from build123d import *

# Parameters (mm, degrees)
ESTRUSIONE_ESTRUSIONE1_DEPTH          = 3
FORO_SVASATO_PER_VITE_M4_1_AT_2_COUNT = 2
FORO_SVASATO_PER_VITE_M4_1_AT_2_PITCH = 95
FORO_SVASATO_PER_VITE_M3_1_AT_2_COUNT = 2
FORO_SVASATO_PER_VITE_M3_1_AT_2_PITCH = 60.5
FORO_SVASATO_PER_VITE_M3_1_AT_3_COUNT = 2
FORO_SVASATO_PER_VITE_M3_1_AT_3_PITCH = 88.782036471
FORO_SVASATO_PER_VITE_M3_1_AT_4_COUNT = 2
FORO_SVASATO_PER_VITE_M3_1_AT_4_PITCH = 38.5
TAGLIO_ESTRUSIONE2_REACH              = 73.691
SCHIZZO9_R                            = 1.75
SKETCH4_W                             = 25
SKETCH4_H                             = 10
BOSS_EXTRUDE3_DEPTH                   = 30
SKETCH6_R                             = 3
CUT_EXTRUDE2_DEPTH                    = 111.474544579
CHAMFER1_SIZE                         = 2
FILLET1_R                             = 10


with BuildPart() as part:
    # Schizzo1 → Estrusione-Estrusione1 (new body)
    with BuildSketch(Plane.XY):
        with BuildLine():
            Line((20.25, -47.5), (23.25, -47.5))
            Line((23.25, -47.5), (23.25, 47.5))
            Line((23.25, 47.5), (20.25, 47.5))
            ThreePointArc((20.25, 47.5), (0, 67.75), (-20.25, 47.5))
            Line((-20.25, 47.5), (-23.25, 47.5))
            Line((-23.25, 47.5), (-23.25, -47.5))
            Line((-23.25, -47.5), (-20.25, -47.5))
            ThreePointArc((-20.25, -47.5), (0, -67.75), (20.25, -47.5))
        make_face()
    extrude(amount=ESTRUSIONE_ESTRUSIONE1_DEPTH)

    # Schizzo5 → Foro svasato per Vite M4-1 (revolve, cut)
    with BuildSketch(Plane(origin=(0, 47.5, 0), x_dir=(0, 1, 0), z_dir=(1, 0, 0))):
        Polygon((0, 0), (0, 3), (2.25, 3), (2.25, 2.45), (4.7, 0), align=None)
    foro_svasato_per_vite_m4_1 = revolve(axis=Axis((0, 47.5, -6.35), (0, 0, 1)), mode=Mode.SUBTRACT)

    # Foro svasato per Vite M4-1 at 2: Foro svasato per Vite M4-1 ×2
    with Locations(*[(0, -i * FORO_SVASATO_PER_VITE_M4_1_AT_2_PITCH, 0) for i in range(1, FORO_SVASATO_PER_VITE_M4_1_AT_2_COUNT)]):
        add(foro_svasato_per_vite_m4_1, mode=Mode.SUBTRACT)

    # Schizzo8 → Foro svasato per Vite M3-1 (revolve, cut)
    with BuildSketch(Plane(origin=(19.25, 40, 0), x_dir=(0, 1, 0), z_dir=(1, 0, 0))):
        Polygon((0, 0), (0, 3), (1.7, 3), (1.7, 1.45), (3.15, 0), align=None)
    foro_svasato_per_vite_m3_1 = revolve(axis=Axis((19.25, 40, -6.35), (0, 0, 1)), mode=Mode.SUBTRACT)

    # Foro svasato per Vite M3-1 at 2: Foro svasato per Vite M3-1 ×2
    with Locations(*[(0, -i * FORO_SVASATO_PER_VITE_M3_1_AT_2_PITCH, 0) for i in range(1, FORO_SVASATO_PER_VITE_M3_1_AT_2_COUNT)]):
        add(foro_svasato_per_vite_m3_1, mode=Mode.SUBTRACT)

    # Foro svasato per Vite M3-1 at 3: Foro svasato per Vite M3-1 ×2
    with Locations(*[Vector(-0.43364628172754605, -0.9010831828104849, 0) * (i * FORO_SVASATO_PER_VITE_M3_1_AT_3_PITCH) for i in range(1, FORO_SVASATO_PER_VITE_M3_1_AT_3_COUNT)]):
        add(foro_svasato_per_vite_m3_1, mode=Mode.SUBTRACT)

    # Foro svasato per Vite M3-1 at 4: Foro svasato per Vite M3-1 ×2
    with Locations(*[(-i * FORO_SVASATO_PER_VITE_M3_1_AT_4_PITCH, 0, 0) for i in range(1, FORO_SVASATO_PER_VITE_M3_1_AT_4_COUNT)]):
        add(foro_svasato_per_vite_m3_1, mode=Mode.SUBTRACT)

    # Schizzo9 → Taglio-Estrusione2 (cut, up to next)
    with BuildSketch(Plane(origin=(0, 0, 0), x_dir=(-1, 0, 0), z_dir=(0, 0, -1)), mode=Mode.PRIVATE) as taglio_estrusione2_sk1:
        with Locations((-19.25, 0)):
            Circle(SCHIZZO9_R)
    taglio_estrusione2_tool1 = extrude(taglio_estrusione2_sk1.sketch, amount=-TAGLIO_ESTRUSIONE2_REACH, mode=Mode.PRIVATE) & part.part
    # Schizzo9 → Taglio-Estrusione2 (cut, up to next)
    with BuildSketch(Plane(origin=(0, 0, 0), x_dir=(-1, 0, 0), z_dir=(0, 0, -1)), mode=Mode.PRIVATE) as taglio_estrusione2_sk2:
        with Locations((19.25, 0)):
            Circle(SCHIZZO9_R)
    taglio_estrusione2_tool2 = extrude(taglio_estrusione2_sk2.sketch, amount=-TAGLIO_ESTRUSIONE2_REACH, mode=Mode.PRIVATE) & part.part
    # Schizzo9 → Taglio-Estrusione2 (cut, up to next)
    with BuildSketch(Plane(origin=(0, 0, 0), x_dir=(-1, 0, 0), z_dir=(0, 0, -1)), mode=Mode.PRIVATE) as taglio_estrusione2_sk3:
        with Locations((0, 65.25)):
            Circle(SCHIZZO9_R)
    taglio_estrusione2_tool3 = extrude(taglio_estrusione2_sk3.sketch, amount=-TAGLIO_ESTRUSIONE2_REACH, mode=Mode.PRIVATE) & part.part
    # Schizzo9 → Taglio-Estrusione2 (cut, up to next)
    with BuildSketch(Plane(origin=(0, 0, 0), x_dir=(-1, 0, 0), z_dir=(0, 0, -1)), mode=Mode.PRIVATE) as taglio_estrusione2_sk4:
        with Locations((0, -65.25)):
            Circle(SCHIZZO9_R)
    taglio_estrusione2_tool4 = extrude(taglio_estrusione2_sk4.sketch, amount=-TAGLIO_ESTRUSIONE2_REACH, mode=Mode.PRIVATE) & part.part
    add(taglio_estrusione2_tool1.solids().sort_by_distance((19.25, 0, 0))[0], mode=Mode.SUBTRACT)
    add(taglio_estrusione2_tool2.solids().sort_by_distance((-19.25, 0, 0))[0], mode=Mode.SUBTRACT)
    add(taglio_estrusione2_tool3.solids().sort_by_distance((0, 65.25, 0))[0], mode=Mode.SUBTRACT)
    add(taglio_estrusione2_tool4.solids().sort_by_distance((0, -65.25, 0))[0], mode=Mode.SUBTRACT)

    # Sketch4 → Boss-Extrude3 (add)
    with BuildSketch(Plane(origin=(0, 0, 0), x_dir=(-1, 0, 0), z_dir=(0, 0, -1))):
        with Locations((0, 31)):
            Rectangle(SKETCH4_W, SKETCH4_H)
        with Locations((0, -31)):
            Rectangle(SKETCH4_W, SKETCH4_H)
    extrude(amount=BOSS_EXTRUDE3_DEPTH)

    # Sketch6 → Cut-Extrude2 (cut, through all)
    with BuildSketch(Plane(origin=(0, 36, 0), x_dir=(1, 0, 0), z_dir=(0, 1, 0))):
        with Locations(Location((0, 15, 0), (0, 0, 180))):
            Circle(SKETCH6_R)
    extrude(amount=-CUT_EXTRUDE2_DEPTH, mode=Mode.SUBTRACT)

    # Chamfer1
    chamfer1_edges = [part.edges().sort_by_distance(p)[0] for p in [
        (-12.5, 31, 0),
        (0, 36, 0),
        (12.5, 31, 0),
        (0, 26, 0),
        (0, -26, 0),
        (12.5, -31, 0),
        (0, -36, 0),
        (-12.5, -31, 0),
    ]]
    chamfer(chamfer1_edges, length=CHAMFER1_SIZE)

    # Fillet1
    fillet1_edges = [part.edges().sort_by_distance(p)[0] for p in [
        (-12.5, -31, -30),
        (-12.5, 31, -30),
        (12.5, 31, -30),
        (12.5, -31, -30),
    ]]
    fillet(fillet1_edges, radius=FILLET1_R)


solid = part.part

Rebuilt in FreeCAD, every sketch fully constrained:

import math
import FreeCAD as App
import Part
import Sketcher

V = App.Vector
Q = App.Units.Quantity


def edges_at(feature, points):
    """Names of the edges that pass closest to the given points."""
    edges = feature.Shape.Edges
    near = lambda p: min(range(len(edges)), key=lambda i: edges[i].distToShape(Part.Vertex(*p))[0])
    return sorted({f"Edge{near(p) + 1}" for p in points})

doc = App.newDocument("Part")
params = doc.addObject("Spreadsheet::Sheet", "Params")
for row, (alias, value) in enumerate([
    ("sketch1_width", "3 mm"),
    ("sketch1_height", "95 mm"),
    ("sketch1_radius", "20.25 mm"),
    ("pad1_length", "3 mm"),
    ("sketch2_height", "3 mm"),
    ("sketch2_width", "4.7 mm"),
    ("sketch2_width2", "2.25 mm"),
    ("groove_angle", "360 deg"),
    ("linearpattern_pitch", "95 mm"),
    ("sketch3_height", "3 mm"),
    ("sketch3_width", "1.7 mm"),
    ("sketch3_width2", "3.15 mm"),
    ("groove2_angle", "360 deg"),
    ("linearpattern2_pitch", "60.5 mm"),
    ("linearpattern3_pitch", "88.782036 mm"),
    ("linearpattern4_pitch", "38.5 mm"),
    ("sketch4_diameter", "3.5 mm"),
    ("sketch5_diameter", "3.5 mm"),
    ("sketch6_diameter", "3.5 mm"),
    ("sketch7_diameter", "3.5 mm"),
    ("sketch8_width", "25 mm"),
    ("sketch8_height", "10 mm"),
    ("pad2_length", "30 mm"),
    ("sketch9_diameter", "6 mm"),
    ("chamfer_size", "2 mm"),
    ("fillet_radius", "10 mm"),
], start=1):
    params.set(f"A{row}", alias)
    params.set(f"B{row}", "=" + value)
    params.setAlias(f"B{row}", alias)

body = doc.addObject("PartDesign::Body", "Body")

sketch1 = body.newObject("Sketcher::SketchObject", "Sketch")
sketch1.AttachmentSupport = (doc.getObject("XY_Plane"), [""])
sketch1.MapMode = "FlatFace"
sketch1.addGeometry([
    Part.LineSegment(V(20.2, -47.5, 0), V(23.2, -47.5, 0)),
    Part.LineSegment(V(23.2, -47.5, 0), V(23.2, 47.5, 0)),
    Part.LineSegment(V(23.2, 47.5, 0), V(20.2, 47.5, 0)),
    Part.ArcOfCircle(Part.Circle(V(0, 47.5, 0), V(0, 0, 1), 20.2), math.radians(0), math.radians(180)),
    Part.LineSegment(V(-20.2, 47.5, 0), V(-23.2, 47.5, 0)),
    Part.LineSegment(V(-23.2, 47.5, 0), V(-23.2, -47.5, 0)),
    Part.LineSegment(V(-23.2, -47.5, 0), V(-20.2, -47.5, 0)),
    Part.ArcOfCircle(Part.Circle(V(0, -47.5, 0), V(0, 0, 1), 20.2), math.radians(180), math.radians(360)),
], False)
sketch1.addConstraint([
    Sketcher.Constraint("Coincident", 0, 2, 1, 1),
    Sketcher.Constraint("Coincident", 1, 2, 2, 1),
    Sketcher.Constraint("Coincident", 2, 2, 3, 1),
    Sketcher.Constraint("Coincident", 3, 2, 4, 1),
    Sketcher.Constraint("Coincident", 4, 2, 5, 1),
    Sketcher.Constraint("Coincident", 5, 2, 6, 1),
    Sketcher.Constraint("Coincident", 6, 2, 7, 1),
    Sketcher.Constraint("Coincident", 7, 2, 0, 1),
    Sketcher.Constraint("Horizontal", 0),
    Sketcher.Constraint("Vertical", 1),
    Sketcher.Constraint("Horizontal", 2),
    Sketcher.Constraint("Horizontal", 4),
    Sketcher.Constraint("Vertical", 5),
    Sketcher.Constraint("Horizontal", 6),
    Sketcher.Constraint("Equal", 3, 7),
    Sketcher.Constraint("Symmetric", 3, 3, 7, 3, -1, 1),
    Sketcher.Constraint("Symmetric", 0, 2, 4, 2, -1, 1),
    Sketcher.Constraint("Symmetric", 2, 2, 3, 2, -2),
    Sketcher.Constraint("Horizontal", 7, 3, 0, 2),
    Sketcher.Constraint("Horizontal", 0, 2, 5, 2),
    Sketcher.Constraint("DistanceX", 0, 1, 0, 2, 3.0),
    Sketcher.Constraint("DistanceY", 1, 1, 1, 2, 95.0),
    Sketcher.Constraint("Radius", 3, 20.25),
])
sketch1.setExpression("Constraints[20]", "Params.sketch1_width")
sketch1.setExpression("Constraints[21]", "Params.sketch1_height")
sketch1.setExpression("Constraints[22]", "Params.sketch1_radius")
pad1 = body.newObject("PartDesign::Pad", "Pad")
pad1.Profile = sketch1
pad1.setExpression("Length", "Params.pad1_length")

sketch2 = body.newObject("Sketcher::SketchObject", "Sketch001")
sketch2.AttachmentSupport = (doc.getObject("YZ_Plane"), [""])
sketch2.MapMode = "FlatFace"
sketch2.addGeometry([
    Part.LineSegment(V(47.5, 3, 0), V(47.5, 0, 0)),
    Part.LineSegment(V(47.5, 0, 0), V(52.2, 0, 0)),
    Part.LineSegment(V(52.2, 0, 0), V(49.8, 2.5, 0)),
    Part.LineSegment(V(49.8, 2.5, 0), V(49.8, 3, 0)),
    Part.LineSegment(V(49.8, 3, 0), V(47.5, 3, 0)),
], False)
sketch2.addGeometry(Part.LineSegment(V(47.5, 0, 0), V(47.5, 3, 0)), True)
sketch2.addConstraint([
    Sketcher.Constraint("Coincident", 0, 2, 1, 1),
    Sketcher.Constraint("Coincident", 1, 2, 2, 1),
    Sketcher.Constraint("Coincident", 2, 2, 3, 1),
    Sketcher.Constraint("Coincident", 3, 2, 4, 1),
    Sketcher.Constraint("Coincident", 4, 2, 0, 1),
    Sketcher.Constraint("Vertical", 0),
    Sketcher.Constraint("Horizontal", 1),
    Sketcher.Constraint("Vertical", 3),
    Sketcher.Constraint("Horizontal", 4),
    Sketcher.Constraint("Vertical", 5),
    Sketcher.Constraint("Coincident", 5, 1, 0, 2),
    Sketcher.Constraint("PointOnObject", 0, 2, -1),
    Sketcher.Constraint("Horizontal", 3, 2, 5, 2),
    Sketcher.Constraint("DistanceY", 0, 2, 0, 1, 3.0),
    Sketcher.Constraint("Angle", 2, Q("135 deg")),
    Sketcher.Constraint("DistanceX", 1, 1, 1, 2, 4.7),
    Sketcher.Constraint("DistanceX", 4, 2, 4, 1, 2.25),
    Sketcher.Constraint("DistanceX", -1, 1, 0, 2, 47.5),
])
sketch2.setExpression("Constraints[13]", "Params.sketch2_height")
sketch2.setExpression("Constraints[15]", "Params.sketch2_width")
sketch2.setExpression("Constraints[16]", "Params.sketch2_width2")
groove = body.newObject("PartDesign::Groove", "Groove")
groove.Profile = sketch2
groove.ReferenceAxis = (sketch2, ["Axis0"])
groove.setExpression("Angle", "Params.groove_angle")
doc.recompute()

linearpattern = body.newObject("PartDesign::LinearPattern", "LinearPattern")
linearpattern.Originals = [groove]
linearpattern.Direction = (doc.getObject("Y_Axis"), [""])
linearpattern.Mode = "offset"
linearpattern.setExpression("Offset", "Params.linearpattern_pitch")
linearpattern.Occurrences = 2
linearpattern.Reversed = True
body.Tip = linearpattern

sketch3 = body.newObject("Sketcher::SketchObject", "Sketch002")
sketch3.AttachmentSupport = (doc.getObject("YZ_Plane"), [""])
sketch3.MapMode = "FlatFace"
sketch3.AttachmentOffset = App.Placement(V(0, 0, 19.25), App.Rotation())
sketch3.addGeometry([
    Part.LineSegment(V(40, 3, 0), V(40, 0, 0)),
    Part.LineSegment(V(40, 0, 0), V(43.1, 0, 0)),
    Part.LineSegment(V(43.1, 0, 0), V(41.7, 1.4, 0)),
    Part.LineSegment(V(41.7, 1.4, 0), V(41.7, 3, 0)),
    Part.LineSegment(V(41.7, 3, 0), V(40, 3, 0)),
], False)
sketch3.addGeometry(Part.LineSegment(V(40, 0, 0), V(40, 3, 0)), True)
sketch3.addConstraint([
    Sketcher.Constraint("Coincident", 0, 2, 1, 1),
    Sketcher.Constraint("Coincident", 1, 2, 2, 1),
    Sketcher.Constraint("Coincident", 2, 2, 3, 1),
    Sketcher.Constraint("Coincident", 3, 2, 4, 1),
    Sketcher.Constraint("Coincident", 4, 2, 0, 1),
    Sketcher.Constraint("Vertical", 0),
    Sketcher.Constraint("Horizontal", 1),
    Sketcher.Constraint("Vertical", 3),
    Sketcher.Constraint("Horizontal", 4),
    Sketcher.Constraint("Vertical", 5),
    Sketcher.Constraint("Coincident", 5, 1, 0, 2),
    Sketcher.Constraint("PointOnObject", 0, 2, -1),
    Sketcher.Constraint("Horizontal", 3, 2, 5, 2),
    Sketcher.Constraint("DistanceY", 0, 2, 0, 1, 3.0),
    Sketcher.Constraint("Angle", 2, Q("135 deg")),
    Sketcher.Constraint("DistanceX", 4, 2, 4, 1, 1.7),
    Sketcher.Constraint("DistanceX", -1, 1, 0, 2, 40.0),
    Sketcher.Constraint("DistanceX", 1, 1, 1, 2, 3.15),
])
sketch3.setExpression("Constraints[13]", "Params.sketch3_height")
sketch3.setExpression("Constraints[15]", "Params.sketch3_width")
sketch3.setExpression("Constraints[17]", "Params.sketch3_width2")
groove2 = body.newObject("PartDesign::Groove", "Groove001")
groove2.Profile = sketch3
groove2.ReferenceAxis = (sketch3, ["Axis0"])
groove2.setExpression("Angle", "Params.groove2_angle")
doc.recompute()

linearpattern2 = body.newObject("PartDesign::LinearPattern", "LinearPattern001")
linearpattern2.Originals = [groove2]
linearpattern2.Direction = (doc.getObject("Y_Axis"), [""])
linearpattern2.Mode = "offset"
linearpattern2.setExpression("Offset", "Params.linearpattern2_pitch")
linearpattern2.Occurrences = 2
linearpattern2.Reversed = True
body.Tip = linearpattern2
doc.recompute()

datumline = body.newObject("PartDesign::Line", "DatumLine")
datumline.Placement = App.Placement(V(0, 0, 0), App.Rotation(V(0, 0, 1), V(-0.433646282, -0.901083183, 0)))
linearpattern3 = body.newObject("PartDesign::LinearPattern", "LinearPattern002")
linearpattern3.Originals = [groove2]
linearpattern3.Direction = (datumline, [""])
linearpattern3.Mode = "offset"
linearpattern3.setExpression("Offset", "Params.linearpattern3_pitch")
linearpattern3.Occurrences = 2
body.Tip = linearpattern3
doc.recompute()

linearpattern4 = body.newObject("PartDesign::LinearPattern", "LinearPattern003")
linearpattern4.Originals = [groove2]
linearpattern4.Direction = (doc.getObject("X_Axis"), [""])
linearpattern4.Mode = "offset"
linearpattern4.setExpression("Offset", "Params.linearpattern4_pitch")
linearpattern4.Occurrences = 2
linearpattern4.Reversed = True
body.Tip = linearpattern4

sketch4 = body.newObject("Sketcher::SketchObject", "Sketch003")
sketch4.AttachmentSupport = (doc.getObject("XY_Plane"), [""])
sketch4.MapMode = "FlatFace"
sketch4.addGeometry(Part.Circle(V(19.2, 0, 0), V(0, 0, 1), 1.8), False)
sketch4.addConstraint([
    Sketcher.Constraint("PointOnObject", 0, 3, -1),
    Sketcher.Constraint("Diameter", 0, 3.5),
    Sketcher.Constraint("DistanceX", -1, 1, 0, 3, 19.25),
])
sketch4.setExpression("Constraints[1]", "Params.sketch4_diameter")
pocket1 = body.newObject("PartDesign::Pocket", "Pocket")
pocket1.Profile = sketch4
pocket1.Type = "UpToFirst"
pocket1.Reversed = True

sketch5 = body.newObject("Sketcher::SketchObject", "Sketch004")
sketch5.AttachmentSupport = (doc.getObject("XY_Plane"), [""])
sketch5.MapMode = "FlatFace"
sketch5.addGeometry(Part.Circle(V(-19.2, 0, 0), V(0, 0, 1), 1.8), False)
sketch5.addConstraint([
    Sketcher.Constraint("PointOnObject", 0, 3, -1),
    Sketcher.Constraint("Diameter", 0, 3.5),
    Sketcher.Constraint("DistanceX", 0, 3, -1, 1, 19.25),
])
sketch5.setExpression("Constraints[1]", "Params.sketch5_diameter")
pocket2 = body.newObject("PartDesign::Pocket", "Pocket001")
pocket2.Profile = sketch5
pocket2.Type = "UpToFirst"
pocket2.Reversed = True

sketch6 = body.newObject("Sketcher::SketchObject", "Sketch005")
sketch6.AttachmentSupport = (doc.getObject("XY_Plane"), [""])
sketch6.MapMode = "FlatFace"
sketch6.addGeometry(Part.Circle(V(0, 65.2, 0), V(0, 0, 1), 1.8), False)
sketch6.addConstraint([
    Sketcher.Constraint("PointOnObject", 0, 3, -2),
    Sketcher.Constraint("Diameter", 0, 3.5),
    Sketcher.Constraint("DistanceY", -1, 1, 0, 3, 65.25),
])
sketch6.setExpression("Constraints[1]", "Params.sketch6_diameter")
pocket3 = body.newObject("PartDesign::Pocket", "Pocket002")
pocket3.Profile = sketch6
pocket3.Type = "UpToFirst"
pocket3.Reversed = True

sketch7 = body.newObject("Sketcher::SketchObject", "Sketch006")
sketch7.AttachmentSupport = (doc.getObject("XY_Plane"), [""])
sketch7.MapMode = "FlatFace"
sketch7.addGeometry(Part.Circle(V(0, -65.2, 0), V(0, 0, 1), 1.8), False)
sketch7.addConstraint([
    Sketcher.Constraint("PointOnObject", 0, 3, -2),
    Sketcher.Constraint("Diameter", 0, 3.5),
    Sketcher.Constraint("DistanceY", 0, 3, -1, 1, 65.25),
])
sketch7.setExpression("Constraints[1]", "Params.sketch7_diameter")
pocket4 = body.newObject("PartDesign::Pocket", "Pocket003")
pocket4.Profile = sketch7
pocket4.Type = "UpToFirst"
pocket4.Reversed = True

sketch8 = body.newObject("Sketcher::SketchObject", "Sketch007")
sketch8.AttachmentSupport = (doc.getObject("XY_Plane"), [""])
sketch8.MapMode = "FlatFace"
sketch8.addGeometry([
    Part.LineSegment(V(12, 36, 0), V(12, 26, 0)),
    Part.LineSegment(V(12, 26, 0), V(-12, 26, 0)),
    Part.LineSegment(V(-12, 26, 0), V(-12, 36, 0)),
    Part.LineSegment(V(-12, 36, 0), V(12, 36, 0)),
    Part.LineSegment(V(12, -26, 0), V(12, -36, 0)),
    Part.LineSegment(V(12, -36, 0), V(-12, -36, 0)),
    Part.LineSegment(V(-12, -36, 0), V(-12, -26, 0)),
    Part.LineSegment(V(-12, -26, 0), V(12, -26, 0)),
], False)
sketch8.addConstraint([
    Sketcher.Constraint("Coincident", 0, 2, 1, 1),
    Sketcher.Constraint("Coincident", 1, 2, 2, 1),
    Sketcher.Constraint("Coincident", 2, 2, 3, 1),
    Sketcher.Constraint("Coincident", 3, 2, 0, 1),
    Sketcher.Constraint("Coincident", 4, 2, 5, 1),
    Sketcher.Constraint("Coincident", 5, 2, 6, 1),
    Sketcher.Constraint("Coincident", 6, 2, 7, 1),
    Sketcher.Constraint("Coincident", 7, 2, 4, 1),
    Sketcher.Constraint("Vertical", 0),
    Sketcher.Constraint("Horizontal", 1),
    Sketcher.Constraint("Vertical", 2),
    Sketcher.Constraint("Horizontal", 3),
    Sketcher.Constraint("Vertical", 4),
    Sketcher.Constraint("Horizontal", 5),
    Sketcher.Constraint("Vertical", 6),
    Sketcher.Constraint("Horizontal", 7),
    Sketcher.Constraint("Symmetric", 2, 2, 4, 2, -1, 1),
    Sketcher.Constraint("Symmetric", 0, 2, 6, 2, -1, 1),
    Sketcher.Constraint("Vertical", 3, 2, 4, 2),
    Sketcher.Constraint("DistanceX", 1, 2, 1, 1, 25.0),
    Sketcher.Constraint("DistanceY", 0, 2, 0, 1, 10.0),
    Sketcher.Constraint("DistanceY", -1, 1, 0, 2, 26.0),
])
sketch8.setExpression("Constraints[19]", "Params.sketch8_width")
sketch8.setExpression("Constraints[20]", "Params.sketch8_height")
pad2 = body.newObject("PartDesign::Pad", "Pad001")
pad2.Profile = sketch8
pad2.setExpression("Length", "Params.pad2_length")
pad2.Reversed = True

sketch9 = body.newObject("Sketcher::SketchObject", "Sketch008")
sketch9.AttachmentSupport = (doc.getObject("XZ_Plane"), [""])
sketch9.MapMode = "FlatFace"
sketch9.AttachmentOffset = App.Placement(V(0, 0, -36), App.Rotation())
sketch9.addGeometry(Part.Circle(V(0, -15, 0), V(0, 0, 1), 3), False)
sketch9.addConstraint([
    Sketcher.Constraint("PointOnObject", 0, 3, -2),
    Sketcher.Constraint("Diameter", 0, 6.0),
    Sketcher.Constraint("DistanceY", 0, 3, -1, 1, 15.0),
])
sketch9.setExpression("Constraints[1]", "Params.sketch9_diameter")
pocket5 = body.newObject("PartDesign::Pocket", "Pocket004")
pocket5.Profile = sketch9
pocket5.Type = "ThroughAll"
pocket5.Reversed = True
doc.recompute()

chamfer = body.newObject("PartDesign::Chamfer", "Chamfer")
chamfer.Base = (pocket5, edges_at(pocket5, [
    (-12.5, 31, 0),
    (0, 36, 0),
    (12.5, 31, 0),
    (0, 26, 0),
    (0, -26, 0),
    (12.5, -31, 0),
    (0, -36, 0),
    (-12.5, -31, 0),
]))
chamfer.setExpression("Size", "Params.chamfer_size")
doc.recompute()

fillet = body.newObject("PartDesign::Fillet", "Fillet")
fillet.Base = (chamfer, edges_at(chamfer, [
    (-12.5, -31, -30),
    (-12.5, 31, -30),
    (12.5, 31, -30),
    (12.5, -31, -30),
]))
fillet.setExpression("Radius", "Params.fillet_radius")

doc.recompute()
